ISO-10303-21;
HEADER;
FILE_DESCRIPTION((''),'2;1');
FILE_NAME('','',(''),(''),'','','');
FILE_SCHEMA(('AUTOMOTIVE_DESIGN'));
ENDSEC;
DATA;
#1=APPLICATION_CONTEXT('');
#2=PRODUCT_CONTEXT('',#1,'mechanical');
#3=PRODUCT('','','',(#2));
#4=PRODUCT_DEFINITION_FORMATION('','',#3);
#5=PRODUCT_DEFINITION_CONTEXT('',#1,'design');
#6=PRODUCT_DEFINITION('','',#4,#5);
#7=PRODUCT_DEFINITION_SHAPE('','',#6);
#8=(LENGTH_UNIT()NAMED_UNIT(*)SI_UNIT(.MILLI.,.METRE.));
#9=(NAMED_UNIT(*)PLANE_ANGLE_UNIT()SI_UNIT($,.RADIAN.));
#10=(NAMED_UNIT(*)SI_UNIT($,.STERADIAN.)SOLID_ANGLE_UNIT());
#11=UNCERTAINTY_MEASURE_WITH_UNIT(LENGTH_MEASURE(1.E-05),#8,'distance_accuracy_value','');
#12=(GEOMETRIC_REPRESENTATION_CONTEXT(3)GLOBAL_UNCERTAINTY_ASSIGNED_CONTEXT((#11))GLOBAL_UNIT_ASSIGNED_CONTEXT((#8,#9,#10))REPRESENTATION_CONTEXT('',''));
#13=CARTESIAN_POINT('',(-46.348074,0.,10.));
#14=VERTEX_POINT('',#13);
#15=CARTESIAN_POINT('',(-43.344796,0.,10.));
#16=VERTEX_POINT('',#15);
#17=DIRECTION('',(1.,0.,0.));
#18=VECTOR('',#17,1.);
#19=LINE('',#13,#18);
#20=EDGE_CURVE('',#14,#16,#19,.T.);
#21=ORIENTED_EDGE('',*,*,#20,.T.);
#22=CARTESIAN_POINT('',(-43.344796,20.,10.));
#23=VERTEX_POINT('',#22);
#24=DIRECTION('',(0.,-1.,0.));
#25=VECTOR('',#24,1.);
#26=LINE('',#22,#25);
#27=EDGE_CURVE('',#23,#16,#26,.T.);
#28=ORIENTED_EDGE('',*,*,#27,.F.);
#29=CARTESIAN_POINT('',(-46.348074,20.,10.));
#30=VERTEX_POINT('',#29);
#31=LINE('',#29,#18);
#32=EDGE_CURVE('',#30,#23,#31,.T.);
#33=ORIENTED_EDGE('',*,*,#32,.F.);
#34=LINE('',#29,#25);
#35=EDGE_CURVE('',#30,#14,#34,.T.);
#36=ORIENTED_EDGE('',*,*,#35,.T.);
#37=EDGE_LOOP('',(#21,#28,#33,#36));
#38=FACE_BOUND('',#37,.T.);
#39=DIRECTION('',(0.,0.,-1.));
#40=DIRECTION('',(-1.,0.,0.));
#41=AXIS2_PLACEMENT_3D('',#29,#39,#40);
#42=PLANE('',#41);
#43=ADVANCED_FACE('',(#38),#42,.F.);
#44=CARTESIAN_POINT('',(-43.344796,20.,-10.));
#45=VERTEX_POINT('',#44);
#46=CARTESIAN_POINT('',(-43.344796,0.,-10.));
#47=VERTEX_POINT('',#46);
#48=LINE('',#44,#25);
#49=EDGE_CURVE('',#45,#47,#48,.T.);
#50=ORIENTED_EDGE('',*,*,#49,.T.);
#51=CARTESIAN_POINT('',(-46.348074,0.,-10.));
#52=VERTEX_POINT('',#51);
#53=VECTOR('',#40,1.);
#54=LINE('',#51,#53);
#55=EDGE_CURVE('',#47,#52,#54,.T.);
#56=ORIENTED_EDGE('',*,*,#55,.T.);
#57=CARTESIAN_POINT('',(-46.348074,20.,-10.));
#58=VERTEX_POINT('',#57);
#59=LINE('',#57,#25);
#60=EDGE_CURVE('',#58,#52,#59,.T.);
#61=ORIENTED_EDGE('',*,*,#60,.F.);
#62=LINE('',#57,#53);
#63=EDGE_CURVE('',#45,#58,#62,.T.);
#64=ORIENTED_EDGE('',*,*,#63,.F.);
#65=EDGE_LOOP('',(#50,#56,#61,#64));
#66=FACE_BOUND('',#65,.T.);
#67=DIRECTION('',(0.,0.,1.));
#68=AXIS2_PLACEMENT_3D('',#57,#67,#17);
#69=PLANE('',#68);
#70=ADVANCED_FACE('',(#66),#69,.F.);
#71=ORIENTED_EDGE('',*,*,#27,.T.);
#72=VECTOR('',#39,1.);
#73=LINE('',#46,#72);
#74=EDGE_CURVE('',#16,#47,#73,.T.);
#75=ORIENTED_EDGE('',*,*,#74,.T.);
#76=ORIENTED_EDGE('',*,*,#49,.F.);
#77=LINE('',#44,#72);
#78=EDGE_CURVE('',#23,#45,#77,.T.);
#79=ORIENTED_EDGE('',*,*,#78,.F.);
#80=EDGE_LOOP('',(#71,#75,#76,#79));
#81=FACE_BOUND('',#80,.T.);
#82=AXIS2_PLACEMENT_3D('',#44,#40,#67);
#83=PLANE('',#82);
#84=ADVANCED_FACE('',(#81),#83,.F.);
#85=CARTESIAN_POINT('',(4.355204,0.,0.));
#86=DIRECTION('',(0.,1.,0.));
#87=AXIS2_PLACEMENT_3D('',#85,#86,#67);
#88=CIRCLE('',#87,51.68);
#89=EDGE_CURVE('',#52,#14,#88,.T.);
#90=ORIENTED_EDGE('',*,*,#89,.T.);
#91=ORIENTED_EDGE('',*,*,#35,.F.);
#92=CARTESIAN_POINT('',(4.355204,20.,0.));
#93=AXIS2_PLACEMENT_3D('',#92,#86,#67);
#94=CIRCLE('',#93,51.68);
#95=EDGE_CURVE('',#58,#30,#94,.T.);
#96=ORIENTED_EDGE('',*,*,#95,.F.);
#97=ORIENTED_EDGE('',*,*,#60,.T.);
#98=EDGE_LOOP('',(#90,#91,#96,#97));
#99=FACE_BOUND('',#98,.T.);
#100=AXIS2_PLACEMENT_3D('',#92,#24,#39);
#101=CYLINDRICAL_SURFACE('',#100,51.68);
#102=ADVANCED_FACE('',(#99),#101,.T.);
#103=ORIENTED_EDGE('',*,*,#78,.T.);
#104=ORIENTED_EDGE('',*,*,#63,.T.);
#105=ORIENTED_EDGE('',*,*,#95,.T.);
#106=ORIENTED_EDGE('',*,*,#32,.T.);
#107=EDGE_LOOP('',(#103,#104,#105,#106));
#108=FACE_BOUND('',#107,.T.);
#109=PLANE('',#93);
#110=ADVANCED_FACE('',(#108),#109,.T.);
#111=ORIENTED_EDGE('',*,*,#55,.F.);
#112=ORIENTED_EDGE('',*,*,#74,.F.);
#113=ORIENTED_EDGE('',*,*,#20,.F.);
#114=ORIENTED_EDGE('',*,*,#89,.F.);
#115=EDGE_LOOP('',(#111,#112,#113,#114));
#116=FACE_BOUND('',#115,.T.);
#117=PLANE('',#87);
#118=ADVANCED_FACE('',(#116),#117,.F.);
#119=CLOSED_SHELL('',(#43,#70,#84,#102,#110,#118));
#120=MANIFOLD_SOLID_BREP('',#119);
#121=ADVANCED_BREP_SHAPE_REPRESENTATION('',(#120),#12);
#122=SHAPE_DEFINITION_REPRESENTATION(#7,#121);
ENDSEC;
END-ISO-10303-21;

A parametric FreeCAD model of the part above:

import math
import FreeCAD as App
import Part
import Sketcher

V = App.Vector
Q = App.Units.Quantity

doc = App.newDocument("Part")
params = doc.addObject("Spreadsheet::Sheet", "Params")
for row, (alias, value) in enumerate([
    ("sketch1_height", "20 mm"),
    ("sketch1_radius", "51.68 mm"),
    ("pad1_length", "20 mm"),
], start=1):
    params.set(f"A{row}", alias)
    params.set(f"B{row}", "=" + value)
    params.setAlias(f"B{row}", alias)

body = doc.addObject("PartDesign::Body", "Body")

# Sketch on XZ plane
sketch1 = body.newObject("Sketcher::SketchObject", "Sketch")
sketch1.AttachmentSupport = (doc.getObject("XZ_Plane"), [""])
sketch1.MapMode = "FlatFace"
sketch1.addGeometry([
    Part.LineSegment(V(-43.3, -10, 0), V(-46.3, -10, 0)),
    Part.ArcOfCircle(Part.Circle(V(4.4, 0, 0), V(0, 0, 1), 51.7), math.radians(169), math.radians(191)),
    Part.LineSegment(V(-46.3, 10, 0), V(-43.3, 10, 0)),
    Part.LineSegment(V(-43.3, 10, 0), V(-43.3, -10, 0)),
], False)
sketch1.addConstraint([
    Sketcher.Constraint("Coincident", 0, 2, 1, 2),
    Sketcher.Constraint("Coincident", 1, 1, 2, 1),
    Sketcher.Constraint("Coincident", 2, 2, 3, 1),
    Sketcher.Constraint("Coincident", 3, 2, 0, 1),
    Sketcher.Constraint("Horizontal", 0),
    Sketcher.Constraint("Horizontal", 2),
    Sketcher.Constraint("Vertical", 3),
    Sketcher.Constraint("Symmetric", 0, 2, 1, 1, -1),
    Sketcher.Constraint("DistanceY", 3, 2, 3, 1, Q("20 mm")),
    Sketcher.Constraint("Radius", 1, Q("51.68 mm")),
    Sketcher.Constraint("DistanceX", 2, 2, 1, 3, Q("47.7 mm")),
    Sketcher.Constraint("DistanceX", -1, 1, 1, 3, Q("4.355204 mm")),
])
sketch1.setExpression("Constraints[8]", "Params.sketch1_height")
sketch1.setExpression("Constraints[9]", "Params.sketch1_radius")
pad1 = body.newObject("PartDesign::Pad", "Pad")
pad1.Profile = sketch1
pad1.setExpression("Length", "Params.pad1_length")
pad1.Reversed = True

doc.recompute()
